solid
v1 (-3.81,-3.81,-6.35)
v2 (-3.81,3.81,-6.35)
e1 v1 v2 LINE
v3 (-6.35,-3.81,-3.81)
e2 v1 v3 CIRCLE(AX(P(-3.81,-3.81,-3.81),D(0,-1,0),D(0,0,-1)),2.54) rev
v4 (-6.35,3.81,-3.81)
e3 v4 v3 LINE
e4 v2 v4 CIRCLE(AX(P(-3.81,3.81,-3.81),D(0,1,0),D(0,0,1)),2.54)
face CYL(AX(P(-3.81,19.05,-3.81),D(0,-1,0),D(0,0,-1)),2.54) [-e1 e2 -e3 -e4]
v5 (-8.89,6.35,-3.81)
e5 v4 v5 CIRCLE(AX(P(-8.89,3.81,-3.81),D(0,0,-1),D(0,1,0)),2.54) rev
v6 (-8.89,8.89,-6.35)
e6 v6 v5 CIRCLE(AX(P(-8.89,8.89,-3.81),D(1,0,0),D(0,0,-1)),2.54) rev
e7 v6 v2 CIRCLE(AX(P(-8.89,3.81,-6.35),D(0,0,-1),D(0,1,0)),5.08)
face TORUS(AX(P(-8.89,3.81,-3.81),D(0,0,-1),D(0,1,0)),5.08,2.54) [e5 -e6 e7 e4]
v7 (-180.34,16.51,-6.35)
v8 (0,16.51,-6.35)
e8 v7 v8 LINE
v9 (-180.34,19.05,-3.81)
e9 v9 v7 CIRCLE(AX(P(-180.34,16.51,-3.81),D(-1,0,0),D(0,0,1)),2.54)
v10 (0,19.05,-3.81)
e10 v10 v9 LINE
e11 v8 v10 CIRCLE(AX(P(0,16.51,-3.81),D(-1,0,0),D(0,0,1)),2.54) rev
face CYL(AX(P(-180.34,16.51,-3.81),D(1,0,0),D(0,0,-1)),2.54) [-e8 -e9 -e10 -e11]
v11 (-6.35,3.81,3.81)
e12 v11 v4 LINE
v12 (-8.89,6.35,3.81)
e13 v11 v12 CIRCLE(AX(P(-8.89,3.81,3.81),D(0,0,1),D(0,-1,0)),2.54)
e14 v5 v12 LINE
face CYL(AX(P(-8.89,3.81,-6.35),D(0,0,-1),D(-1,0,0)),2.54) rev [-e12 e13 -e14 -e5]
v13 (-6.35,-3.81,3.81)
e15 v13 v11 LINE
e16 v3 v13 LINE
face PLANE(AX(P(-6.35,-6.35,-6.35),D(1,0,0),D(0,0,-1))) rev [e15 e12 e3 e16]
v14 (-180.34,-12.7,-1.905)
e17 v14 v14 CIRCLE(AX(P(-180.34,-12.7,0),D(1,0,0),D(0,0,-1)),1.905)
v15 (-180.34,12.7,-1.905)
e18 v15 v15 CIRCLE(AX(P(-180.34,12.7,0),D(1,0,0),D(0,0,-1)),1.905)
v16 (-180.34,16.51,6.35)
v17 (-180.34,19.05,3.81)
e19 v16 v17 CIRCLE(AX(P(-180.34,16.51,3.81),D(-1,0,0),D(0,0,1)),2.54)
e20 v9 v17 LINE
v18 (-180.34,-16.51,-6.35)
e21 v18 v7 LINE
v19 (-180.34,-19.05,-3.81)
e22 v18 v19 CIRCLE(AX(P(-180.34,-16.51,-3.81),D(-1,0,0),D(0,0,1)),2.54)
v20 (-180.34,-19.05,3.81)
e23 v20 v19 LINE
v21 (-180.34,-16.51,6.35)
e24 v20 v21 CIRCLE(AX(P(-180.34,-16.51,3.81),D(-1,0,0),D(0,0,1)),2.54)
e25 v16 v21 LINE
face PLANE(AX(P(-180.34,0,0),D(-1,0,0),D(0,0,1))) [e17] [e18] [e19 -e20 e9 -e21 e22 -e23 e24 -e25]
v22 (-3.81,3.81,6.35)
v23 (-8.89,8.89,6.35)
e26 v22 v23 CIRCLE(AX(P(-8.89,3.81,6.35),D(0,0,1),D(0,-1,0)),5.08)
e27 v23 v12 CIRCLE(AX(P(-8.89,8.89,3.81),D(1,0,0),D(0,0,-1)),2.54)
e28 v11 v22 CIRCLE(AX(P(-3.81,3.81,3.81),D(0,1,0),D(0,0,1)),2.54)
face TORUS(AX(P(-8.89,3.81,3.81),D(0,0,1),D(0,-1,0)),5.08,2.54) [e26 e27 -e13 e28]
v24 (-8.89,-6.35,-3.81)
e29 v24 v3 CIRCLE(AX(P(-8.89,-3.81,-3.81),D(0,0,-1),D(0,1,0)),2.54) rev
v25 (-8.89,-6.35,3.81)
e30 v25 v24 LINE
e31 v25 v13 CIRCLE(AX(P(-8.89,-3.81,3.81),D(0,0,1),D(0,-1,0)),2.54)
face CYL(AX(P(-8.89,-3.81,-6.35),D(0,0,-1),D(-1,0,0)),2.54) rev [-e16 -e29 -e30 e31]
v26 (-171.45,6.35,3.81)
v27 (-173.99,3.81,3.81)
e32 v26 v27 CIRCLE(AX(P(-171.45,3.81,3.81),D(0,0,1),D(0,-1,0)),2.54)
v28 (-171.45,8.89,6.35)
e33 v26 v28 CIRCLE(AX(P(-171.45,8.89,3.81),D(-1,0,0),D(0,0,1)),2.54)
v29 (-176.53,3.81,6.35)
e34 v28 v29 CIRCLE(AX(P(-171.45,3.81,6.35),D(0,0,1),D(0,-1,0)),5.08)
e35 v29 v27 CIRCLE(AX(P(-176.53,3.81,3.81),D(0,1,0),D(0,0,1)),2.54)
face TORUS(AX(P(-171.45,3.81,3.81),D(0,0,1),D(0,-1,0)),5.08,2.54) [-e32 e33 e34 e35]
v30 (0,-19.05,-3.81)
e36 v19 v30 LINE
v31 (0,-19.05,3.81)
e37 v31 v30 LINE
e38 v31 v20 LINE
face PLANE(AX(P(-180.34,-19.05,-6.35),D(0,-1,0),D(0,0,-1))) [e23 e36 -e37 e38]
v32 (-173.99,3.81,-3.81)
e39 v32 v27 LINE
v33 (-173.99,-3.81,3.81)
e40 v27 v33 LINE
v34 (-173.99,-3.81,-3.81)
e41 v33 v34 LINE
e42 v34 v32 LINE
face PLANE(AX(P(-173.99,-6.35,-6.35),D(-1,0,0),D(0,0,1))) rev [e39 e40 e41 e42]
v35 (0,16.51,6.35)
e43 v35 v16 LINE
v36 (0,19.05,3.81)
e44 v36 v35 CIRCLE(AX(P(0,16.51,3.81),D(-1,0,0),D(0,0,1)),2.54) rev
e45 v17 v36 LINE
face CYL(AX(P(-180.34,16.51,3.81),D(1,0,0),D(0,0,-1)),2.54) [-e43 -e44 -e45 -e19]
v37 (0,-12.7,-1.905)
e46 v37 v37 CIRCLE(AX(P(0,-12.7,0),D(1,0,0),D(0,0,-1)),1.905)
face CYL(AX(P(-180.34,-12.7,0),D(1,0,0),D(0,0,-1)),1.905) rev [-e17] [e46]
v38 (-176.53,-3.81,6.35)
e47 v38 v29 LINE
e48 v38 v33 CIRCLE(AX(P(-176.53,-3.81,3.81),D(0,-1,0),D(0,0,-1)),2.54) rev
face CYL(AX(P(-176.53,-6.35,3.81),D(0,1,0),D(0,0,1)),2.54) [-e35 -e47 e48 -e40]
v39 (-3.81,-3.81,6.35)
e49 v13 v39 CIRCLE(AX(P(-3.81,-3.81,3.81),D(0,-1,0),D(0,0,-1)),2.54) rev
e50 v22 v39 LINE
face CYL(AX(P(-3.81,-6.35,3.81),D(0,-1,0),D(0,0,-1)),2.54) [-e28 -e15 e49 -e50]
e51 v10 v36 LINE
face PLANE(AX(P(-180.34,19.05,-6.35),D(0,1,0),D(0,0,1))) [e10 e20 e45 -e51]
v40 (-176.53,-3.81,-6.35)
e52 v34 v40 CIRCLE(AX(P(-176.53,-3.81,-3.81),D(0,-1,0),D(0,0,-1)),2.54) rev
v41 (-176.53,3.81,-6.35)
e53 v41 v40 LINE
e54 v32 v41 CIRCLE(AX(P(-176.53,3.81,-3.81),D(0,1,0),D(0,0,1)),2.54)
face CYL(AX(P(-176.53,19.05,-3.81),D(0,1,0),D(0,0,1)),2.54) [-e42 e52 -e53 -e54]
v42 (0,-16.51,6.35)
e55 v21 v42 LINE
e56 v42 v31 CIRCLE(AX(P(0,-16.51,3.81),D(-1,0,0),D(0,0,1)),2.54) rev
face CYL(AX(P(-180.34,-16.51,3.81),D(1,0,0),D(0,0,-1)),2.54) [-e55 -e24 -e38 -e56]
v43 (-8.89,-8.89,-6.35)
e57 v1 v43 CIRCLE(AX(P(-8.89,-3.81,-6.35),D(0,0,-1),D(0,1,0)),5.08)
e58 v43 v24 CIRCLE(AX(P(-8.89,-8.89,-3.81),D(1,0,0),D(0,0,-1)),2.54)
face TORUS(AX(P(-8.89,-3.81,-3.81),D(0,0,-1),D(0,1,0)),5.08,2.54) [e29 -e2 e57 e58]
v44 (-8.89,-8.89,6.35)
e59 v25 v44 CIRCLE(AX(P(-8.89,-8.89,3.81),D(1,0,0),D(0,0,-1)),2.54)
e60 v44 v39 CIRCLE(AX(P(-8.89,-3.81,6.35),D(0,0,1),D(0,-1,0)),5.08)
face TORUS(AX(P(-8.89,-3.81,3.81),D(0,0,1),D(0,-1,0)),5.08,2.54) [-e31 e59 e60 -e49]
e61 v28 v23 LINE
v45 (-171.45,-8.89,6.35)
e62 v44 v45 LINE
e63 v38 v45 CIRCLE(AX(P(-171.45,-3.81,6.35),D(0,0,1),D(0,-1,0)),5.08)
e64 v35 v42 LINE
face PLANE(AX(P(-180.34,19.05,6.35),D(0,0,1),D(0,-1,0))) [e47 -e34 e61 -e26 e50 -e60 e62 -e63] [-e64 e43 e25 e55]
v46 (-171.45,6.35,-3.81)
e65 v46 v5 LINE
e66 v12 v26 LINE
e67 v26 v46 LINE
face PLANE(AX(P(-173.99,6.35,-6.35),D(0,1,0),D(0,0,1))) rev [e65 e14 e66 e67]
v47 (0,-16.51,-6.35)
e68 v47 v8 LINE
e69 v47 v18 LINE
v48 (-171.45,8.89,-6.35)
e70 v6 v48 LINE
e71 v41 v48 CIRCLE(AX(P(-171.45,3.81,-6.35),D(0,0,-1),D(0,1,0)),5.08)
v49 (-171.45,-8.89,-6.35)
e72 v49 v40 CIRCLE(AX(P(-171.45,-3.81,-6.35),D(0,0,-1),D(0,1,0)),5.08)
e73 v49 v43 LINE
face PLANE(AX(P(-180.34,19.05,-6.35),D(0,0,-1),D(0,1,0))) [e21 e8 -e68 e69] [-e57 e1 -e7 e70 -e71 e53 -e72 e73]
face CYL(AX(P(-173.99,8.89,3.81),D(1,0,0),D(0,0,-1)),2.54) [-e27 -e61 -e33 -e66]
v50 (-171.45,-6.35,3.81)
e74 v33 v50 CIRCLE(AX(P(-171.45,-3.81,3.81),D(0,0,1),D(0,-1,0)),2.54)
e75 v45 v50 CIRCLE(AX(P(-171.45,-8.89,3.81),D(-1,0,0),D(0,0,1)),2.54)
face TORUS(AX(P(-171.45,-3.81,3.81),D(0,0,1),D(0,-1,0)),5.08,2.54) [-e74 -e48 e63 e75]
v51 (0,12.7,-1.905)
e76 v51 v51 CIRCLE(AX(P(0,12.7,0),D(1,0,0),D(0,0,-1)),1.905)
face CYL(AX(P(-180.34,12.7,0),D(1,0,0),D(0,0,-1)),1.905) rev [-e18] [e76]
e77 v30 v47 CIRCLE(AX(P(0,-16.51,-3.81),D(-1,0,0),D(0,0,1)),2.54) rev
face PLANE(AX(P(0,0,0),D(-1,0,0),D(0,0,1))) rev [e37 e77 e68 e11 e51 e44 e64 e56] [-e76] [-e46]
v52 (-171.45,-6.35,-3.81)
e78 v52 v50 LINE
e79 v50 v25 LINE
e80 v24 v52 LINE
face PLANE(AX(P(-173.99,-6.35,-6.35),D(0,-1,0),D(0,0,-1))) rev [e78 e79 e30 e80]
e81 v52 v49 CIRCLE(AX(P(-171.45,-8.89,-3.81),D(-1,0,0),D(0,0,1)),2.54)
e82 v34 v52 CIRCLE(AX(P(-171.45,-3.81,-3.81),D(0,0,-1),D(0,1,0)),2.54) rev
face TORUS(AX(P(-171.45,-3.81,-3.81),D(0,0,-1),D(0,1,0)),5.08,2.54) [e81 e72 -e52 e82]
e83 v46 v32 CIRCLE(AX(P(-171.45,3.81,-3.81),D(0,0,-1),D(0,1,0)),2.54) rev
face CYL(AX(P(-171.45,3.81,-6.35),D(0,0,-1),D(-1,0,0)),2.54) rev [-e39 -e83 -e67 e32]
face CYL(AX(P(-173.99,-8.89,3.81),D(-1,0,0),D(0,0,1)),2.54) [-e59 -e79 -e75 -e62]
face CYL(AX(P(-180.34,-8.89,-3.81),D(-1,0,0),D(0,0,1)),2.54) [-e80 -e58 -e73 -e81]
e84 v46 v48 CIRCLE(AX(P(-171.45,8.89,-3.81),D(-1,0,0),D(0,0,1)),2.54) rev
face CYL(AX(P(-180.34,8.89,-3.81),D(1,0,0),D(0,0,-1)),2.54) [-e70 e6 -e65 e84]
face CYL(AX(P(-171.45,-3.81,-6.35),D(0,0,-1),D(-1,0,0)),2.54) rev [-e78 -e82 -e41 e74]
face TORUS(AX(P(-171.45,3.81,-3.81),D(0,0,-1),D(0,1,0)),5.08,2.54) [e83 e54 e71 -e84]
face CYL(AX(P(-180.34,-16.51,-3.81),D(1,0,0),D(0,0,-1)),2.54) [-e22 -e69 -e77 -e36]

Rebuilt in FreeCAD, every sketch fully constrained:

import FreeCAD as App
import Part
import Sketcher

V = App.Vector
Q = App.Units.Quantity


def edges_at(feature, points):
    """Names of the edges that pass closest to the given points."""
    edges = feature.Shape.Edges
    near = lambda p: min(range(len(edges)), key=lambda i: edges[i].distToShape(Part.Vertex(*p))[0])
    return sorted({f"Edge{near(p) + 1}" for p in points})


def add_polygon(sketch, points):
    """Adds a closed chain of lines whose ends are joined by coincident constraints."""
    first, n = sketch.GeometryCount, len(points)
    for a, b in zip(points, points[1:] + points[:1]):
        sketch.addGeometry(Part.LineSegment(App.Vector(*a, 0), App.Vector(*b, 0)), False)
    for i in range(n):
        sketch.addConstraint(Sketcher.Constraint("Coincident", first + i, 2, first + (i + 1) % n, 1))

doc = App.newDocument("Part")
params = doc.addObject("Spreadsheet::Sheet", "Params")
for row, (alias, value) in enumerate([
    ("sketch1_diameter", "0.15 in"),
    ("sketch1_width", "1.5 in"),
    ("sketch1_height", "0.5 in"),
    ("pad1_length", "7.1 in"),
    ("sketch2_width", "6.6 in"),
    ("sketch2_height", "0.5 in"),
    ("fillet_radius", "0.1 in"),
], start=1):
    params.set(f"A{row}", alias)
    params.set(f"B{row}", "=" + value)
    params.setAlias(f"B{row}", alias)

body = doc.addObject("PartDesign::Body", "Body")

# Sketch on YZ plane
sketch1 = doc.addObject("Sketcher::SketchObject", "Sketch")
body.addObject(sketch1)
sketch1.AttachmentSupport = (doc.YZ_Plane, [""])
sketch1.MapMode = "FlatFace"
add_polygon(sketch1, [(19.1, 6.3), (-19.1, 6.3), (-19.1, -6.3), (19.1, -6.3)])  # lines 0-3
sketch1.addGeometry(Part.Circle(V(-12.7, 0, 0), V(0, 0, 1), 1.9), False)  # 4
sketch1.addGeometry(Part.Circle(V(12.7, 0, 0), V(0, 0, 1), 1.9), False)  # 5
sketch1.addConstraint([
    Sketcher.Constraint("Horizontal", 0),
    Sketcher.Constraint("Vertical", 1),
    Sketcher.Constraint("Horizontal", 2),
    Sketcher.Constraint("Vertical", 3),
    Sketcher.Constraint("Equal", 4, 5),
    Sketcher.Constraint("Symmetric", 4, 3, 5, 3, -1, 1),
    Sketcher.Constraint("Symmetric", 0, 2, 2, 2, -1, 1),
    Sketcher.Constraint("PointOnObject", 4, 3, -1),
    Sketcher.Constraint("Diameter", 4, Q("0.15 in")),
    Sketcher.Constraint("DistanceX", 0, 2, 0, 1, Q("1.5 in")),
    Sketcher.Constraint("DistanceY", 1, 2, 1, 1, Q("0.5 in")),
    Sketcher.Constraint("DistanceX", 4, 3, 5, 3, Q("1 in")),
])
sketch1.setExpression("Constraints[12]", "Params.sketch1_diameter")
sketch1.setExpression("Constraints[13]", "Params.sketch1_width")
sketch1.setExpression("Constraints[14]", "Params.sketch1_height")
pad1 = doc.addObject("PartDesign::Pad", "Pad")
body.addObject(pad1)
pad1.Profile = sketch1
pad1.setExpression("Length", "Params.pad1_length")
pad1.Reversed = True

# Sketch on XY plane
sketch2 = doc.addObject("Sketcher::SketchObject", "Sketch001")
body.addObject(sketch2)
sketch2.AttachmentSupport = (doc.XY_Plane, [""])
sketch2.MapMode = "FlatFace"
sketch2.AttachmentOffset = App.Placement(V(0, 0, 0.25 * 25.4), App.Rotation())
add_polygon(sketch2, [(-174, 6), (-174, -6), (-6, -6), (-6, 6)])  # lines 0-3
sketch2.addConstraint([
    Sketcher.Constraint("Vertical", 0),
    Sketcher.Constraint("Horizontal", 1),
    Sketcher.Constraint("Vertical", 2),
    Sketcher.Constraint("Horizontal", 3),
    Sketcher.Constraint("DistanceX", 1, 1, 1, 2, Q("6.6 in")),
    Sketcher.Constraint("DistanceY", 0, 2, 0, 1, Q("0.5 in")),
    Sketcher.Constraint("DistanceX", 0, 2, -1, 1, Q("6.85 in")),
    Sketcher.Constraint("DistanceY", 0, 2, -1, 1, Q("0.25 in")),
])
sketch2.setExpression("Constraints[8]", "Params.sketch2_width")
sketch2.setExpression("Constraints[9]", "Params.sketch2_height")
pocket1 = doc.addObject("PartDesign::Pocket", "Pocket")
body.addObject(pocket1)
pocket1.Profile = sketch2
pocket1.Type = "ThroughAll"
doc.recompute()

fillet = doc.addObject("PartDesign::Fillet", "Fillet")
body.addObject(fillet)
fillet.Base = (pocket1, edges_at(pocket1, [
    (-6.35, 0, -6.35),
    (-6.35, 6.35, 0),
    (-90.17, -6.35, -6.35),
    (-6.35, -6.35, 0),
    (-173.99, 0, -6.35),
    (-173.99, -6.35, 0),
    (-90.17, 6.35, -6.35),
    (-173.99, 6.35, 0),
    (-6.35, 0, 6.35),
    (-90.17, 6.35, 6.35),
    (-173.99, 0, 6.35),
    (-90.17, -6.35, 6.35),
    (-90.17, 19.05, 6.35),
    (-90.17, 19.05, -6.35),
    (-90.17, -19.05, -6.35),
    (-90.17, -19.05, 6.35),
]))
fillet.setExpression("Radius", "Params.fillet_radius")

doc.recompute()
